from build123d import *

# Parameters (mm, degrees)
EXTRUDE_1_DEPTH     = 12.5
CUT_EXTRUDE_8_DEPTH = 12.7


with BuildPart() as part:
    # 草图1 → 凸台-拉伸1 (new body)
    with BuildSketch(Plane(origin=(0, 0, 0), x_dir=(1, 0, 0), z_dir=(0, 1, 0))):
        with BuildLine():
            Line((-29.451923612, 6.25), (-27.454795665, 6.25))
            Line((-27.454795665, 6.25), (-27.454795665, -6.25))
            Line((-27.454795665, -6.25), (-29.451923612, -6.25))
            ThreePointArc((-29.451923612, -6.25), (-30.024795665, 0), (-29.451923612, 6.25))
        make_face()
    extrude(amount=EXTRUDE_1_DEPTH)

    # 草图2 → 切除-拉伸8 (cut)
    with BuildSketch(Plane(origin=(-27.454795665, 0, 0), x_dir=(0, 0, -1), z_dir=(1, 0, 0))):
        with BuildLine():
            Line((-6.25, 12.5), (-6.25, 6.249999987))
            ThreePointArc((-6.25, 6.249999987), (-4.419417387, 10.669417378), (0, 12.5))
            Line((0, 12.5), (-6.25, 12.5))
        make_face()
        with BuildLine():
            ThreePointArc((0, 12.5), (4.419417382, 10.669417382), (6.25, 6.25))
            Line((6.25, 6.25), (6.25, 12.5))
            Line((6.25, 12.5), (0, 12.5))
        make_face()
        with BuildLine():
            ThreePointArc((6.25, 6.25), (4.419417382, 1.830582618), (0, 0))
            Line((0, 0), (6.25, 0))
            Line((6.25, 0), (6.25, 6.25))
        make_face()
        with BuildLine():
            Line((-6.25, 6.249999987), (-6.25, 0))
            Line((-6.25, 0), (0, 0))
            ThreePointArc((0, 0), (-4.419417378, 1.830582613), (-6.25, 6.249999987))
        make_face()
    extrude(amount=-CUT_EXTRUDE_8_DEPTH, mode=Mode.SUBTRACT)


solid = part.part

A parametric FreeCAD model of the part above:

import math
import FreeCAD as App
import Part
import Sketcher

V = App.Vector
Q = App.Units.Quantity

doc = App.newDocument("Part")
params = doc.addObject("Spreadsheet::Sheet", "Params")
for row, (alias, value) in enumerate([
    ("sketch1_radius", "34.38 mm"),
    ("sketch1_height", "12.5 mm"),
    ("pad1_length", "12.5 mm"),
    ("sketch2_radius", "6.25 mm"),
    ("pocket1_length", "12.7 mm"),
], start=1):
    params.set(f"A{row}", alias)
    params.set(f"B{row}", "=" + value)
    params.setAlias(f"B{row}", alias)

body = doc.addObject("PartDesign::Body", "Body")

# Sketch on XZ plane
sketch1 = doc.addObject("Sketcher::SketchObject", "Sketch")
body.addObject(sketch1)
sketch1.AttachmentSupport = (doc.XZ_Plane, [""])
sketch1.MapMode = "FlatFace"
sketch1.addGeometry(Part.LineSegment(V(-27.454796, -6.25, 0), V(-29.451924, -6.25, 0)), False)
sketch1.addGeometry(Part.ArcOfCircle(Part.Circle(V(4.355204, 0, 0), V(0, 0, 1), 34.38), math.radians(169.525859), math.radians(190.474141)), False)
sketch1.addGeometry(Part.LineSegment(V(-29.451924, 6.25, 0), V(-27.454796, 6.25, 0)), False)
sketch1.addGeometry(Part.LineSegment(V(-27.454796, 6.25, 0), V(-27.454796, -6.25, 0)), False)
sketch1.addConstraint(Sketcher.Constraint("Coincident", 0, 2, 1, 2))
sketch1.addConstraint(Sketcher.Constraint("Coincident", 1, 1, 2, 1))
sketch1.addConstraint(Sketcher.Constraint("Coincident", 2, 2, 3, 1))
sketch1.addConstraint(Sketcher.Constraint("Coincident", 3, 2, 0, 1))
sketch1.addConstraint(Sketcher.Constraint("Horizontal", 0))
sketch1.addConstraint(Sketcher.Constraint("Horizontal", 2))
sketch1.addConstraint(Sketcher.Constraint("Vertical", 3))
sketch1.addConstraint(Sketcher.Constraint("Symmetric", 0, 2, 1, 1, -1))
sketch1.addConstraint(Sketcher.Constraint("Radius", 1, Q("34.38 mm")))
sketch1.addConstraint(Sketcher.Constraint("DistanceY", 3, 2, 3, 1, Q("12.5 mm")))
sketch1.addConstraint(Sketcher.Constraint("DistanceX", 2, 2, 1, 3, Q("31.81 mm")))
sketch1.addConstraint(Sketcher.Constraint("DistanceX", -1, 1, 1, 3, Q("4.355204 mm")))
sketch1.setExpression("Constraints[8]", "Params.sketch1_radius")
sketch1.setExpression("Constraints[9]", "Params.sketch1_height")
pad1 = doc.addObject("PartDesign::Pad", "Pad")
body.addObject(pad1)
pad1.Profile = sketch1
pad1.setExpression("Length", "Params.pad1_length")
pad1.Reversed = True

# Sketch on YZ plane
sketch2 = doc.addObject("Sketcher::SketchObject", "Sketch001")
body.addObject(sketch2)
sketch2.AttachmentSupport = (doc.YZ_Plane, [""])
sketch2.MapMode = "FlatFace"
sketch2.AttachmentOffset = App.Placement(V(0, 0, -27.454796), App.Rotation())
sketch2.addGeometry(Part.LineSegment(V(12.5, 6.25, 0), V(6.25, 6.25, 0)), False)
sketch2.addGeometry(Part.ArcOfCircle(Part.Circle(V(6.25, 0, 0), V(0, 0, 1), 6.25), math.radians(0), math.radians(90)), False)
sketch2.addGeometry(Part.LineSegment(V(12.5, 0, 0), V(12.5, 6.25, 0)), False)
sketch2.addGeometry(Part.ArcOfCircle(Part.Circle(V(6.25, 0, 0), V(0, 0, 1), 6.25), math.radians(-90), math.radians(0)), False)
sketch2.addGeometry(Part.LineSegment(V(6.25, -6.25, 0), V(12.5, -6.25, 0)), False)
sketch2.addGeometry(Part.LineSegment(V(12.5, -6.25, 0), V(12.5, 0, 0)), False)
sketch2.addGeometry(Part.ArcOfCircle(Part.Circle(V(6.25, 0, 0), V(0, 0, 1), 6.25), math.radians(-180), math.radians(-90)), False)
sketch2.addGeometry(Part.LineSegment(V(0, 0, 0), V(0, -6.25, 0)), False)
sketch2.addGeometry(Part.LineSegment(V(0, -6.25, 0), V(6.25, -6.25, 0)), False)
sketch2.addGeometry(Part.LineSegment(V(6.25, 6.25, 0), V(0, 6.25, 0)), False)
sketch2.addGeometry(Part.LineSegment(V(0, 6.25, 0), V(0, 0, 0)), False)
sketch2.addGeometry(Part.ArcOfCircle(Part.Circle(V(6.25, 0, 0), V(0, 0, 1), 6.25), math.radians(90), math.radians(180)), False)
sketch2.addConstraint(Sketcher.Constraint("Tangent", 0, 2, 1, 2))
sketch2.addConstraint(Sketcher.Constraint("Tangent", 1, 1, 2, 1))
sketch2.addConstraint(Sketcher.Constraint("Coincident", 2, 2, 0, 1))
sketch2.addConstraint(Sketcher.Constraint("Tangent", 3, 1, 4, 1))
sketch2.addConstraint(Sketcher.Constraint("Coincident", 4, 2, 5, 1))
sketch2.addConstraint(Sketcher.Constraint("Tangent", 5, 2, 3, 2))
sketch2.addConstraint(Sketcher.Constraint("Tangent", 6, 1, 7, 1))
sketch2.addConstraint(Sketcher.Constraint("Coincident", 7, 2, 8, 1))
sketch2.addConstraint(Sketcher.Constraint("Tangent", 8, 2, 6, 2))
sketch2.addConstraint(Sketcher.Constraint("Coincident", 9, 2, 10, 1))
sketch2.addConstraint(Sketcher.Constraint("Tangent", 10, 2, 11, 2))
sketch2.addConstraint(Sketcher.Constraint("Tangent", 11, 1, 9, 1))
sketch2.addConstraint(Sketcher.Constraint("Horizontal", 0))
sketch2.addConstraint(Sketcher.Constraint("Vertical", 2))
sketch2.addConstraint(Sketcher.Constraint("Horizontal", 4))
sketch2.addConstraint(Sketcher.Constraint("Vertical", 5))
sketch2.addConstraint(Sketcher.Constraint("Vertical", 7))
sketch2.addConstraint(Sketcher.Constraint("Horizontal", 8))
sketch2.addConstraint(Sketcher.Constraint("Horizontal", 9))
sketch2.addConstraint(Sketcher.Constraint("Vertical", 10))
sketch2.addConstraint(Sketcher.Constraint("Coincident", 6, 1, -1, 1))
sketch2.addConstraint(Sketcher.Constraint("Coincident", 10, 2, -1, 1))
sketch2.addConstraint(Sketcher.Constraint("Coincident", 3, 3, 1, 3))
sketch2.addConstraint(Sketcher.Constraint("Coincident", 6, 3, 1, 3))
sketch2.addConstraint(Sketcher.Constraint("Coincident", 11, 1, 0, 2))
sketch2.addConstraint(Sketcher.Constraint("Equal", 1, 3))
sketch2.addConstraint(Sketcher.Constraint("Radius", 1, Q("6.25 mm")))
sketch2.setExpression("Constraints[26]", "Params.sketch2_radius")
pocket1 = doc.addObject("PartDesign::Pocket", "Pocket")
body.addObject(pocket1)
pocket1.Profile = sketch2
pocket1.setExpression("Length", "Params.pocket1_length")

doc.recompute()
